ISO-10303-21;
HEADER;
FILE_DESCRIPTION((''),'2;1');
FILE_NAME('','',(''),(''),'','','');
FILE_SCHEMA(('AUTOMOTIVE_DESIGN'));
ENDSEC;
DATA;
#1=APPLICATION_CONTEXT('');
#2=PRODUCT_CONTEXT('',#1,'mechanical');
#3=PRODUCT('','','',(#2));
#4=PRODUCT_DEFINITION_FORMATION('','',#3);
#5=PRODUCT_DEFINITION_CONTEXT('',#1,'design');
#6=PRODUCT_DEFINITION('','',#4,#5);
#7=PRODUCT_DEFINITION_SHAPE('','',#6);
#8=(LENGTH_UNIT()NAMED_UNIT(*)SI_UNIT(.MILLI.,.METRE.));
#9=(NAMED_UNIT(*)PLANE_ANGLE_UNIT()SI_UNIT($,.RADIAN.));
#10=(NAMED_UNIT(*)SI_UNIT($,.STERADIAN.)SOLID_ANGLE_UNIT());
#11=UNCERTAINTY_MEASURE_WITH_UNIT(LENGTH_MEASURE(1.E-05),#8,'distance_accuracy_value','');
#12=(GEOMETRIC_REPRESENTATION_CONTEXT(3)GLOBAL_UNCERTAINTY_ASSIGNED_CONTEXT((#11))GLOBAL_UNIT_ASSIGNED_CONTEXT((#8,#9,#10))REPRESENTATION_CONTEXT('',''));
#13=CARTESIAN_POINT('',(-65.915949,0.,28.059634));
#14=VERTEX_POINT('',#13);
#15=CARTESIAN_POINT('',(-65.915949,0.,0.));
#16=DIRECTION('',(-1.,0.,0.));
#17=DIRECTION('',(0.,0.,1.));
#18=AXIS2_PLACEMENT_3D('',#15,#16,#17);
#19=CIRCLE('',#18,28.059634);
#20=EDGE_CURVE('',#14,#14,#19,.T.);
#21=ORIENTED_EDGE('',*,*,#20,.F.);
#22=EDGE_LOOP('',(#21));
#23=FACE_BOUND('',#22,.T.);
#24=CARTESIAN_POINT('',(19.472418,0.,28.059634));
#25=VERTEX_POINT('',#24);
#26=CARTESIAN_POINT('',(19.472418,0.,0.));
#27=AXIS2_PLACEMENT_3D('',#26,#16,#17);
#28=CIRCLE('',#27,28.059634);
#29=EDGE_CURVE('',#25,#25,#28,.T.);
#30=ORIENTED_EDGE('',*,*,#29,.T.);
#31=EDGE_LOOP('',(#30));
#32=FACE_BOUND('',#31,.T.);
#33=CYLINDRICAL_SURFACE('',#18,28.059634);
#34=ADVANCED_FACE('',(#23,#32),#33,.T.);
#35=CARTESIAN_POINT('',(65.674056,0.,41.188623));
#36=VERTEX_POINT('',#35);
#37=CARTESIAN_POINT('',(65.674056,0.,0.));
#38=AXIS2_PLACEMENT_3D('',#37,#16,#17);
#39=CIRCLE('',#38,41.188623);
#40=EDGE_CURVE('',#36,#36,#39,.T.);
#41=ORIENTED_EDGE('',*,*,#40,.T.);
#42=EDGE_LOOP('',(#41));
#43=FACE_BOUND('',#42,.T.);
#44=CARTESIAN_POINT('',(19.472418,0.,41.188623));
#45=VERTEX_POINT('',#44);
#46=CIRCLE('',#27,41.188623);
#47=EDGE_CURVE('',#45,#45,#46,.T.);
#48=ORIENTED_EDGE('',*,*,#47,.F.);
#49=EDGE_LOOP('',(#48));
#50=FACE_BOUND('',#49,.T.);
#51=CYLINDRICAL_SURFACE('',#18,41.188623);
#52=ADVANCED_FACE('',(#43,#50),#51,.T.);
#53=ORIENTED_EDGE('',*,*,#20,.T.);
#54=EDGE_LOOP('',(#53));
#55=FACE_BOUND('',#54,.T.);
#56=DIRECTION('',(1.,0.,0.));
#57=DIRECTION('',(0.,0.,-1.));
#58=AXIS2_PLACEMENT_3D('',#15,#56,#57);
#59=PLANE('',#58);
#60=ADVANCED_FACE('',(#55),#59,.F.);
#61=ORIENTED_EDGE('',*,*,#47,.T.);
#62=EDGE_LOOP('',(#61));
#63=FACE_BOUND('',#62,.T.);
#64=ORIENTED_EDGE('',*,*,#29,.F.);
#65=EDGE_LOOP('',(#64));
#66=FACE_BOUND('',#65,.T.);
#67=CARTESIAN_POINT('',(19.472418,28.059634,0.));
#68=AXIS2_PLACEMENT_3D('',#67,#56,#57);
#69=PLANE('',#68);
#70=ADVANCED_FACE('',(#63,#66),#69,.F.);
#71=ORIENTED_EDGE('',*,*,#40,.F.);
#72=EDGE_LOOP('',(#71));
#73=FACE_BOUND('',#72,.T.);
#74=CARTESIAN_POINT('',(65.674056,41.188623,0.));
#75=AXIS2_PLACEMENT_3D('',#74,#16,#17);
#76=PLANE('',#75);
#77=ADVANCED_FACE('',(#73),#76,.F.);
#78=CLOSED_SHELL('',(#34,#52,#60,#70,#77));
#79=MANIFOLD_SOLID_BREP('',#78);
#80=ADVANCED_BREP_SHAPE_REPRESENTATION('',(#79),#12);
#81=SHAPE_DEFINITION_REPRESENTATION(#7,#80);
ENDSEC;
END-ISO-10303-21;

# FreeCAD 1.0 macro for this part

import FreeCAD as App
import Part
import Sketcher
Q = App.Units.Quantity

doc = App.newDocument("Part")
body = doc.addObject("PartDesign::Body", "Body")

# Sketch on XY plane
sketch1 = body.newObject("Sketcher::SketchObject", "Sketch")
sketch1.AttachmentSupport = (doc.getObject("XY_Plane"), [""])
sketch1.MapMode = "FlatFace"
sketch1.addGeometry([
    Part.LineSegment(App.Vector(-66, 28, 0), App.Vector(-66, 0, 0)),  # 0
    Part.LineSegment(App.Vector(-66, 0, 0), App.Vector(66, 0, 0)),  # 1
    Part.LineSegment(App.Vector(66, 0, 0), App.Vector(66, 41, 0)),  # 2
    Part.LineSegment(App.Vector(66, 41, 0), App.Vector(19, 41, 0)),  # 3
    Part.LineSegment(App.Vector(19, 41, 0), App.Vector(19, 28, 0)),  # 4
    Part.LineSegment(App.Vector(19, 28, 0), App.Vector(-66, 28, 0)),  # 5
], False)
sketch1.addConstraint([
    Sketcher.Constraint("Coincident", 0, 2, 1, 1),
    Sketcher.Constraint("Coincident", 1, 2, 2, 1),
    Sketcher.Constraint("Coincident", 2, 2, 3, 1),
    Sketcher.Constraint("Coincident", 3, 2, 4, 1),
    Sketcher.Constraint("Coincident", 4, 2, 5, 1),
    Sketcher.Constraint("Coincident", 5, 2, 0, 1),
    Sketcher.Constraint("Vertical", 0),
    Sketcher.Constraint("Horizontal", 1),
    Sketcher.Constraint("Vertical", 2),
    Sketcher.Constraint("Horizontal", 3),
    Sketcher.Constraint("Vertical", 4),
    Sketcher.Constraint("Horizontal", 5),
    Sketcher.Constraint("PointOnObject", 0, 2, -1),
    Sketcher.Constraint("DistanceY", 4, 2, 4, 1, Q("13.12899 mm")),
    Sketcher.Constraint("DistanceX", 1, 1, 1, 2, Q("131.590006 mm")),
    Sketcher.Constraint("DistanceX", 3, 2, 3, 1, Q("46.201638 mm")),
    Sketcher.Constraint("DistanceY", 0, 2, 0, 1, Q("28.059634 mm")),
    Sketcher.Constraint("DistanceX", 0, 2, -1, 1, Q("65.915949 mm")),
])
revolution = body.newObject("PartDesign::Revolution", "Revolution")
revolution.Profile = sketch1
revolution.ReferenceAxis = (sketch1, ["H_Axis"])
revolution.Angle = 360

doc.recompute()
